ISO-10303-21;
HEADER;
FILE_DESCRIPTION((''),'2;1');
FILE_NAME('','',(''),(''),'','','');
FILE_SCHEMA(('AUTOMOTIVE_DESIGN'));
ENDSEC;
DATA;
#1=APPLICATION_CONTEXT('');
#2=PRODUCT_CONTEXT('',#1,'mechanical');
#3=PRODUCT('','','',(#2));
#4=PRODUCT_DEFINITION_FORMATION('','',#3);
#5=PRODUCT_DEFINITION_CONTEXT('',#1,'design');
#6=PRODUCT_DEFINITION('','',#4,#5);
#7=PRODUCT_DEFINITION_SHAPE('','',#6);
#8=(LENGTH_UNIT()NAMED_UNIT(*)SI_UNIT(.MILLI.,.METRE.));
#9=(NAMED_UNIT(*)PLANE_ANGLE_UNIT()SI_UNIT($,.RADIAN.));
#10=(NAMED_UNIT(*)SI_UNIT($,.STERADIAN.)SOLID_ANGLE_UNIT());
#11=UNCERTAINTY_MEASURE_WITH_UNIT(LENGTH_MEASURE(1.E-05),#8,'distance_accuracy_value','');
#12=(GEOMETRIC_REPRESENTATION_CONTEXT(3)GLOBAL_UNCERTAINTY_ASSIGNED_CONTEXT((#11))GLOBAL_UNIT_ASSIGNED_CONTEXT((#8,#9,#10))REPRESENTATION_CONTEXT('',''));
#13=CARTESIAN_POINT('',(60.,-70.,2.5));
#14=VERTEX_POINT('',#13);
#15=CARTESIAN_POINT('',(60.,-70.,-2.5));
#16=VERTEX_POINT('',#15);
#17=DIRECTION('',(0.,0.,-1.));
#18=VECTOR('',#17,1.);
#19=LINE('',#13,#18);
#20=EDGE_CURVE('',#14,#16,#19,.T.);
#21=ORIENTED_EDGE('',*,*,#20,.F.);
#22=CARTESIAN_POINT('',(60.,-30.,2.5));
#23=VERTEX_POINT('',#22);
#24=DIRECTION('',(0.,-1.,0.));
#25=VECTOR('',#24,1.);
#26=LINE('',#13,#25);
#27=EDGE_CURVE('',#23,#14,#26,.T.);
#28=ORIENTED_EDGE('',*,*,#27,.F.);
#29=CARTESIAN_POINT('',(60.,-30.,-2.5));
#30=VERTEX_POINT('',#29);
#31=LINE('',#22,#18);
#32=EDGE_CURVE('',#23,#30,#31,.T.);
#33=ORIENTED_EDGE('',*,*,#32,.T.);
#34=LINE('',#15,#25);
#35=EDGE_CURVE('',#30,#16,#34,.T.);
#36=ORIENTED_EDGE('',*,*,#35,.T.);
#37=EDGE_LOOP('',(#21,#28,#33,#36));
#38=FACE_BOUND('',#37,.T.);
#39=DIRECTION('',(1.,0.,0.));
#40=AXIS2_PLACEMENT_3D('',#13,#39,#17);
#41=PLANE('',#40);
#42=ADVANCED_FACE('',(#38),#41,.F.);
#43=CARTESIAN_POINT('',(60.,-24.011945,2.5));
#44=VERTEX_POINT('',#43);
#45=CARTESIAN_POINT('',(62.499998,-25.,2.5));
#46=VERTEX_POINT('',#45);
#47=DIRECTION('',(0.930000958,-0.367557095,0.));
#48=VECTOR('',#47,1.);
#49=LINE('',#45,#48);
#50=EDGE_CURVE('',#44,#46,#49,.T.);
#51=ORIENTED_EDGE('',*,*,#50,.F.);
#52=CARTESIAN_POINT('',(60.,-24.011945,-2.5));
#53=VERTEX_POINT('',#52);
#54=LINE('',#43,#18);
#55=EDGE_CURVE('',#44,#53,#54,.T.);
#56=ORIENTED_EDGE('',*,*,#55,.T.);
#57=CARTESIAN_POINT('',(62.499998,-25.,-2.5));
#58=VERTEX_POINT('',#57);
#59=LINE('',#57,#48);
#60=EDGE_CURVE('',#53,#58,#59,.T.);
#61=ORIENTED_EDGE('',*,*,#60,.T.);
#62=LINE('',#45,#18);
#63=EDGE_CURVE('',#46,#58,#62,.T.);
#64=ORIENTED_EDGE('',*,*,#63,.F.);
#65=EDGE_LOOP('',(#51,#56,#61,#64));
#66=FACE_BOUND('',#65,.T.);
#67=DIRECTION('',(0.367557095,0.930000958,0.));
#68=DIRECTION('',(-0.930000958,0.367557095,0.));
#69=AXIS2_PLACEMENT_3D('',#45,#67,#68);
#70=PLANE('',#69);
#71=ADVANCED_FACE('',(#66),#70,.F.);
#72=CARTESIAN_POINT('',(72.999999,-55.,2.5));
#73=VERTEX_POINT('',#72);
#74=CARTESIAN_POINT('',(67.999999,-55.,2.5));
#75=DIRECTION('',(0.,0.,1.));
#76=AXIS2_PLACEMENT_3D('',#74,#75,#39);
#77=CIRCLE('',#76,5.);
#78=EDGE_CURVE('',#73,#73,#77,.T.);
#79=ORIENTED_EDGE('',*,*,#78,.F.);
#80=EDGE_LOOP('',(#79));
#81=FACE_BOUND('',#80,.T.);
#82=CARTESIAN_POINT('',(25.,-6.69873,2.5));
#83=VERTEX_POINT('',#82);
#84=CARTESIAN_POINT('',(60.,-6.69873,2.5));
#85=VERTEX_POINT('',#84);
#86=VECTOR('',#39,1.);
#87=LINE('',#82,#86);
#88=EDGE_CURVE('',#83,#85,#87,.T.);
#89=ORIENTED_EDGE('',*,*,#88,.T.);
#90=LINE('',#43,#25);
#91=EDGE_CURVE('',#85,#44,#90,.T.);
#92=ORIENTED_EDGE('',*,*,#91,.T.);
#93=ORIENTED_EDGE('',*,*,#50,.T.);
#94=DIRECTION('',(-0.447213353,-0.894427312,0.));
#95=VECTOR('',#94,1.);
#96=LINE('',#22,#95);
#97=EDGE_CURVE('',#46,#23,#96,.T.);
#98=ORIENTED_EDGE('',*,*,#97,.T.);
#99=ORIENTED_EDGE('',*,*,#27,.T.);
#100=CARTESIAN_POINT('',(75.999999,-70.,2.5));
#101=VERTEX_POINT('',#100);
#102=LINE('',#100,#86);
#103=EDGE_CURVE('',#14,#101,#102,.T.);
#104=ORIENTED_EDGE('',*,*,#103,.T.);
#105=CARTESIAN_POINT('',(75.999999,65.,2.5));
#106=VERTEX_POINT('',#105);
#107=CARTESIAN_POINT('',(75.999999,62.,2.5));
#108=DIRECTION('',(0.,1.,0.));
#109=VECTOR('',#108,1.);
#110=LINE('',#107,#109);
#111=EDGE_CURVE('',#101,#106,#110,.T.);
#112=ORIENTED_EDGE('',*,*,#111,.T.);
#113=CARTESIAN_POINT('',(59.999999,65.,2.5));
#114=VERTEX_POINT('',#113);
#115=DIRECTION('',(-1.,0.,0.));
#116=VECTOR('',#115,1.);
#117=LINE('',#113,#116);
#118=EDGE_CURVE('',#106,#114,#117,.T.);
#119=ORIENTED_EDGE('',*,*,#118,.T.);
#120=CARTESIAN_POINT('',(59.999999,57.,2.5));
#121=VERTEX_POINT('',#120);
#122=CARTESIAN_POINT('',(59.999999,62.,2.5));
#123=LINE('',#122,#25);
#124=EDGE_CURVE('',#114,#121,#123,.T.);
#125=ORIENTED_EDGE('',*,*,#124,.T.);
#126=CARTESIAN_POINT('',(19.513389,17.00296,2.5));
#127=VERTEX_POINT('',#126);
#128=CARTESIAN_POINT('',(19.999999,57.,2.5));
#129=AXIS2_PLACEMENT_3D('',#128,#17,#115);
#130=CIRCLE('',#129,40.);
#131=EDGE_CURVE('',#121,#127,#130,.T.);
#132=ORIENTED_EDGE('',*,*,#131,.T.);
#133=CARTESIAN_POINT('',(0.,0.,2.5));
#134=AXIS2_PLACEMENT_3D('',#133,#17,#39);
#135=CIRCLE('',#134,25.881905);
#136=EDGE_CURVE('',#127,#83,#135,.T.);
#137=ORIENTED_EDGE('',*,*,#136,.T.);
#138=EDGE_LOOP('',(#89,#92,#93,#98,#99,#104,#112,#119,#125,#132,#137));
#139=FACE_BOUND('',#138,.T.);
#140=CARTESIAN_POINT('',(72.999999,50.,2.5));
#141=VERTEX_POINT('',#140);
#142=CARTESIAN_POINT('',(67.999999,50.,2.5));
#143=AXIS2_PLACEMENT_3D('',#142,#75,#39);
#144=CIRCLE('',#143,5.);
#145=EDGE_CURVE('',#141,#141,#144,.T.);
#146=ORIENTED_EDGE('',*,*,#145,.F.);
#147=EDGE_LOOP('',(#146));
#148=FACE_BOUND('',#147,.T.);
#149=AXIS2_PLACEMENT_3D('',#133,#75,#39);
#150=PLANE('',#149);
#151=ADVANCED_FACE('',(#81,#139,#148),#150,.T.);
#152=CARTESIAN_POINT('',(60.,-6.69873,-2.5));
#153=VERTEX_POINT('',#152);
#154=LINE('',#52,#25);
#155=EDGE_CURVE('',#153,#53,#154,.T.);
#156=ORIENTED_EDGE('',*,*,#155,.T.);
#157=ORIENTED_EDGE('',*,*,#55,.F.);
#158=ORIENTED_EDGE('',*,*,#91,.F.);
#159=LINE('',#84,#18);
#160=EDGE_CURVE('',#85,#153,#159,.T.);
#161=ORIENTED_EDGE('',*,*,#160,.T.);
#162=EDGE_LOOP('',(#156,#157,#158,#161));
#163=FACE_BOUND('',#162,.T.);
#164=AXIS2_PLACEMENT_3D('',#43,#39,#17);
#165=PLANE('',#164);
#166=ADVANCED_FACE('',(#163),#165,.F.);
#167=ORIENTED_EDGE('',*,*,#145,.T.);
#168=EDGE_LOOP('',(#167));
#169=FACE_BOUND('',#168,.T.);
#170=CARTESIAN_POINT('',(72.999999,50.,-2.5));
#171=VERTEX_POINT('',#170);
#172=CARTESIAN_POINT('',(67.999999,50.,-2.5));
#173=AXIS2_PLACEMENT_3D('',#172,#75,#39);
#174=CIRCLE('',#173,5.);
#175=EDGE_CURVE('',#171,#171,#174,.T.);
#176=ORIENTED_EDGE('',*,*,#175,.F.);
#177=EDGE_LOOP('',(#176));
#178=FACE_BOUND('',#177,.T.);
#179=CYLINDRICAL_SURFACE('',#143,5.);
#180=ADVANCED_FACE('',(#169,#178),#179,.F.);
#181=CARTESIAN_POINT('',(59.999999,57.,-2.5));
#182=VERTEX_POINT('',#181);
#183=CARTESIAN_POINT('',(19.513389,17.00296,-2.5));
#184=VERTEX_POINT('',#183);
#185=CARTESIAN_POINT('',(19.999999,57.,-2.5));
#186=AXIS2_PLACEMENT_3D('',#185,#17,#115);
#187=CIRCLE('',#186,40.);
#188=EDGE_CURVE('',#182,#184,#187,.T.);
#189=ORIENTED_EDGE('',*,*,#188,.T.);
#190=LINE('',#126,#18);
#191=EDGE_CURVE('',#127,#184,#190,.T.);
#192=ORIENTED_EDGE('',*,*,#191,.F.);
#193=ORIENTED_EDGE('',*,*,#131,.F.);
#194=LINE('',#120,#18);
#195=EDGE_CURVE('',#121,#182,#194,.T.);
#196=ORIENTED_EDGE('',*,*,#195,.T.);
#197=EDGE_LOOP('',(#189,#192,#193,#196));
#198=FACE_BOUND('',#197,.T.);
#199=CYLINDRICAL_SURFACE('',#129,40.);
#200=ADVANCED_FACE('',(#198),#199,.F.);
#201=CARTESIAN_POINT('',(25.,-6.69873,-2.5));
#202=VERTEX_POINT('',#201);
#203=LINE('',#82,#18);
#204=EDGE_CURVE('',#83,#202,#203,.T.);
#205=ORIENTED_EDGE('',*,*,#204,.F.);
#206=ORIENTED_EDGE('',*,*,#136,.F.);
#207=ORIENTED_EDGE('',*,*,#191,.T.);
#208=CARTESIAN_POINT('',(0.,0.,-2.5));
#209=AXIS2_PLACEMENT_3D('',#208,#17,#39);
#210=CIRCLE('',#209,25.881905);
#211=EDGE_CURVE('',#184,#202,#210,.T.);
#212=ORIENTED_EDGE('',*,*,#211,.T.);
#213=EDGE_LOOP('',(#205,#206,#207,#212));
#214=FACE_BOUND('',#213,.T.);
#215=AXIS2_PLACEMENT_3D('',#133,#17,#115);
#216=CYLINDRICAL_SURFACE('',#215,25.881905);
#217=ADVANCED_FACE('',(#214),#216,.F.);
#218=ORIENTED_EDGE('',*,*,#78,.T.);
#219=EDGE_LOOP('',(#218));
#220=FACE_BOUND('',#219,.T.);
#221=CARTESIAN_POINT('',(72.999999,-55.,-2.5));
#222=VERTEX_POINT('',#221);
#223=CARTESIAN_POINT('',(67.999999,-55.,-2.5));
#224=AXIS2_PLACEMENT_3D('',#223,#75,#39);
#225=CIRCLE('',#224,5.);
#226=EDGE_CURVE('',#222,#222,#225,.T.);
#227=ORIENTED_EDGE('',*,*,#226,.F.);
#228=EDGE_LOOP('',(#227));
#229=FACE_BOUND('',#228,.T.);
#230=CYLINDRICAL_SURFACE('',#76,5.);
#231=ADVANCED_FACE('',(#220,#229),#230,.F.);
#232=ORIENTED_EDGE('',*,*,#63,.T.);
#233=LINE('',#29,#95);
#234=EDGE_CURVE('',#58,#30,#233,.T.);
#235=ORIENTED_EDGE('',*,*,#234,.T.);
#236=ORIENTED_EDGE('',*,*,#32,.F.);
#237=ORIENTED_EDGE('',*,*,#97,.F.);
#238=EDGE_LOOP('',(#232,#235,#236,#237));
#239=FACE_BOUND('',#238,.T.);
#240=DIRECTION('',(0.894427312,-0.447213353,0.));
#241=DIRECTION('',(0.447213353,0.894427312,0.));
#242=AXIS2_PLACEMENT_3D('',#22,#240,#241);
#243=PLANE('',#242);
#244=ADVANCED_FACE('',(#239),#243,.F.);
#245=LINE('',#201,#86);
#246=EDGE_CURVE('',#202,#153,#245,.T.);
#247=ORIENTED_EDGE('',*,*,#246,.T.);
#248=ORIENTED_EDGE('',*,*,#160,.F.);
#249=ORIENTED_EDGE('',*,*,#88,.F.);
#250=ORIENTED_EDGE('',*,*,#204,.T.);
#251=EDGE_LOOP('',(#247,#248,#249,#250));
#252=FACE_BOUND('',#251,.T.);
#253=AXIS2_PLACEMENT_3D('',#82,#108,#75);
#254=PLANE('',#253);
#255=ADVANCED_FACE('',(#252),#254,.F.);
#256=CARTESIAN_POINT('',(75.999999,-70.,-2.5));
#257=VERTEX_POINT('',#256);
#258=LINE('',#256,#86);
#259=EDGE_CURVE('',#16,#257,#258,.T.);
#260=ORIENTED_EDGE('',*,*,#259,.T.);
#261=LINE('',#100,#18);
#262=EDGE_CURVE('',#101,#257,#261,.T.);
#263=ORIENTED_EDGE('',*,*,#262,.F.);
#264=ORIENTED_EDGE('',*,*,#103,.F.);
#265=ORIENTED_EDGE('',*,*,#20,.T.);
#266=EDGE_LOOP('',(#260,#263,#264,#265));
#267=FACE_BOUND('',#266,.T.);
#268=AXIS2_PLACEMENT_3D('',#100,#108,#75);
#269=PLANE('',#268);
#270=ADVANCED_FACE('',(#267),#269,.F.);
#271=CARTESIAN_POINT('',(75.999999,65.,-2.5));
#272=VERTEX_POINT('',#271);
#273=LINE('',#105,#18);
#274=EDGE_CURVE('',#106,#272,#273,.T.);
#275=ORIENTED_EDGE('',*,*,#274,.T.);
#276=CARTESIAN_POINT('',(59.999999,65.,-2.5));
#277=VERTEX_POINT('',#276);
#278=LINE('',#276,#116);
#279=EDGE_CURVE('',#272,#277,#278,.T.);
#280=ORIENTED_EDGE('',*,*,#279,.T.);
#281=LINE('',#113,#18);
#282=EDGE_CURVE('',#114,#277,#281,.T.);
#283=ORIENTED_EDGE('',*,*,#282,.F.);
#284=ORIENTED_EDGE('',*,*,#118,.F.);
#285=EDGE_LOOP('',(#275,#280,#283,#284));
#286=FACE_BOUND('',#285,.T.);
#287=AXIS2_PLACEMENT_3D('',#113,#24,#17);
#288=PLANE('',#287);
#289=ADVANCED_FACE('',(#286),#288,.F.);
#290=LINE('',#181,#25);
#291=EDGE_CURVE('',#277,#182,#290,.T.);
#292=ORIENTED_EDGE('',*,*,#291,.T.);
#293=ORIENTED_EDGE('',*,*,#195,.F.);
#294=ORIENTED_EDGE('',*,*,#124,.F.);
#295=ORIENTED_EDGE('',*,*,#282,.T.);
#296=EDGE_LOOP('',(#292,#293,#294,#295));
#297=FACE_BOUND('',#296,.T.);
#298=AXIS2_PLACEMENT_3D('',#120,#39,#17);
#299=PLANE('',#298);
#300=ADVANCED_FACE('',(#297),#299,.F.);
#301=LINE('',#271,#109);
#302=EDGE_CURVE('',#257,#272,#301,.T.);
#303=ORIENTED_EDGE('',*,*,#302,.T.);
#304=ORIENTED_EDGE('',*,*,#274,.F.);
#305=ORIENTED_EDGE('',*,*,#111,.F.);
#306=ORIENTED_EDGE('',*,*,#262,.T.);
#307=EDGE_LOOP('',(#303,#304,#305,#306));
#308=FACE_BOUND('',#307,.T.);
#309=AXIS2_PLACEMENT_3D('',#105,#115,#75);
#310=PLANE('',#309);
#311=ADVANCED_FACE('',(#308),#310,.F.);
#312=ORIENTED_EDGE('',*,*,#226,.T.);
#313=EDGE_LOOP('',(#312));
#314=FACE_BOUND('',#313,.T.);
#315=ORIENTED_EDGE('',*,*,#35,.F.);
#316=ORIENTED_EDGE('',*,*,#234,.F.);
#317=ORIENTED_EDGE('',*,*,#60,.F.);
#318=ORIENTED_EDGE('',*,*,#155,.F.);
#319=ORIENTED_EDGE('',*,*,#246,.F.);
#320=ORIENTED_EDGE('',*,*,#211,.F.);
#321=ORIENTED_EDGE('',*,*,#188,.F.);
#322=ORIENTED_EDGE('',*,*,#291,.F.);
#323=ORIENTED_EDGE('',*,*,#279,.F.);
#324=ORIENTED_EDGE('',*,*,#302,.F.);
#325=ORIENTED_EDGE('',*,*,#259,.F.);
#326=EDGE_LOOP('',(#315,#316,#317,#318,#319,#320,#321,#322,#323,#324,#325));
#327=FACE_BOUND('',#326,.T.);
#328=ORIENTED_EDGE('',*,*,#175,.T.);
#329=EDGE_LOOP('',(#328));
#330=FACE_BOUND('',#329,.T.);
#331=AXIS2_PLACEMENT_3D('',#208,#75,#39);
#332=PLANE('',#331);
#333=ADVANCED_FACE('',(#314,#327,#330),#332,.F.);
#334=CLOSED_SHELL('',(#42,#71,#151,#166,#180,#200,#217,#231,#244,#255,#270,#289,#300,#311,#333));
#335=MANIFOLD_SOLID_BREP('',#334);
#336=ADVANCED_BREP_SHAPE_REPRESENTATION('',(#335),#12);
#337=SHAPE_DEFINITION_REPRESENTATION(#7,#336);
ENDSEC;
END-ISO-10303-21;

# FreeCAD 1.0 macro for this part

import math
import FreeCAD as App
import Part
import Sketcher

V = App.Vector
Q = App.Units.Quantity

doc = App.newDocument("Part")
body = doc.addObject("PartDesign::Body", "Body")

# Sketch on XY plane
sketch1 = body.newObject("Sketcher::SketchObject", "Sketch")
sketch1.AttachmentSupport = (doc.getObject("XY_Plane"), [""])
sketch1.MapMode = "FlatFace"
sketch1.addGeometry([
    Part.LineSegment(V(25, -6.7, 0), V(60, -6.7, 0)),  # 0
    Part.LineSegment(V(60, -6.7, 0), V(60, -24, 0)),  # 1
    Part.LineSegment(V(60, -24, 0), V(62.5, -25, 0)),  # 2
    Part.LineSegment(V(62.5, -25, 0), V(60, -30, 0)),  # 3
    Part.LineSegment(V(60, -30, 0), V(60, -70, 0)),  # 4
    Part.LineSegment(V(60, -70, 0), V(76, -70, 0)),  # 5
    Part.LineSegment(V(76, -70, 0), V(76, 65, 0)),  # 6
    Part.LineSegment(V(76, 65, 0), V(60, 65, 0)),  # 7
    Part.LineSegment(V(60, 65, 0), V(60, 57, 0)),  # 8
    Part.ArcOfCircle(Part.Circle(V(20, 57, 0), V(0, 0, 1), 40), math.radians(-91), math.radians(0)),  # 9
    Part.ArcOfCircle(Part.Circle(V(0, 0, 0), V(0, 0, 1), 25.9), math.radians(-15), math.radians(41)),  # 10
], False)
sketch1.addConstraint([
    Sketcher.Constraint("Coincident", 0, 2, 1, 1),
    Sketcher.Constraint("Coincident", 1, 2, 2, 1),
    Sketcher.Constraint("Coincident", 2, 2, 3, 1),
    Sketcher.Constraint("Coincident", 3, 2, 4, 1),
    Sketcher.Constraint("Coincident", 4, 2, 5, 1),
    Sketcher.Constraint("Coincident", 5, 2, 6, 1),
    Sketcher.Constraint("Coincident", 6, 2, 7, 1),
    Sketcher.Constraint("Coincident", 7, 2, 8, 1),
    Sketcher.Constraint("Tangent", 8, 2, 9, 2),
    Sketcher.Constraint("Coincident", 9, 1, 10, 2),
    Sketcher.Constraint("Coincident", 10, 1, 0, 1),
    Sketcher.Constraint("Horizontal", 0),
    Sketcher.Constraint("Vertical", 1),
    Sketcher.Constraint("Vertical", 4),
    Sketcher.Constraint("Horizontal", 5),
    Sketcher.Constraint("Vertical", 6),
    Sketcher.Constraint("Horizontal", 7),
    Sketcher.Constraint("Vertical", 8),
    Sketcher.Constraint("Coincident", 10, 3, -1, 1),
    Sketcher.Constraint("Vertical", 1, 2, 3, 2),
    Sketcher.Constraint("Vertical", 4, 2, 7, 2),
    Sketcher.Constraint("Radius", 9, Q("40 mm")),
    Sketcher.Constraint("DistanceX", 0, 1, 0, 2, Q("35 mm")),
    Sketcher.Constraint("DistanceX", 5, 1, 5, 2, Q("15.999999 mm")),
    Sketcher.Constraint("DistanceY", 4, 2, 4, 1, Q("40 mm")),
    Sketcher.Constraint("DistanceY", 6, 1, 6, 2, Q("135 mm")),
    Sketcher.Constraint("DistanceY", 8, 2, 8, 1, Q("8 mm")),
    Sketcher.Constraint("DistanceX", -1, 1, 9, 3, Q("19.999999 mm")),
    Sketcher.Constraint("DistanceY", -1, 1, 9, 3, Q("57 mm")),
    Sketcher.Constraint("DistanceY", 2, 2, -1, 1, Q("25 mm")),
    Sketcher.Constraint("DistanceX", -1, 1, 2, 2, Q("62.499998 mm")),
    Sketcher.Constraint("Radius", 10, Q("25.881905 mm")),
    Sketcher.Constraint("DistanceY", 1, 2, 1, 1, Q("17.313215 mm")),
])
pad1 = body.newObject("PartDesign::Pad", "Pad")
pad1.Profile = sketch1
pad1.Length = 5
pad1.Midplane = True

# Sketch on XY plane
sketch2 = body.newObject("Sketcher::SketchObject", "Sketch001")
sketch2.AttachmentSupport = (doc.getObject("XY_Plane"), [""])
sketch2.MapMode = "FlatFace"
sketch2.AttachmentOffset = App.Placement(V(0, 0, 2.5), App.Rotation())
sketch2.addGeometry([
    Part.Circle(V(68, 50, 0), V(0, 0, 1), 5),
    Part.Circle(V(68, -55, 0), V(0, 0, 1), 5),
], False)
sketch2.addConstraint([
    Sketcher.Constraint("Equal", 0, 1),
    Sketcher.Constraint("Vertical", 0, 3, 1, 3),
    Sketcher.Constraint("Diameter", 0, Q("10 mm")),
    Sketcher.Constraint("DistanceX", -1, 1, 0, 3, Q("67.999999 mm")),
    Sketcher.Constraint("DistanceY", -1, 1, 0, 3, Q("50 mm")),
    Sketcher.Constraint("DistanceY", 1, 3, -1, 1, Q("55 mm")),
])
doc.recompute()
hole = body.newObject("PartDesign::Hole", "Hole")
hole.Profile = sketch2
hole.ThreadType = "None"
hole.Diameter = 10
hole.DepthType = "ThroughAll"

doc.recompute()
